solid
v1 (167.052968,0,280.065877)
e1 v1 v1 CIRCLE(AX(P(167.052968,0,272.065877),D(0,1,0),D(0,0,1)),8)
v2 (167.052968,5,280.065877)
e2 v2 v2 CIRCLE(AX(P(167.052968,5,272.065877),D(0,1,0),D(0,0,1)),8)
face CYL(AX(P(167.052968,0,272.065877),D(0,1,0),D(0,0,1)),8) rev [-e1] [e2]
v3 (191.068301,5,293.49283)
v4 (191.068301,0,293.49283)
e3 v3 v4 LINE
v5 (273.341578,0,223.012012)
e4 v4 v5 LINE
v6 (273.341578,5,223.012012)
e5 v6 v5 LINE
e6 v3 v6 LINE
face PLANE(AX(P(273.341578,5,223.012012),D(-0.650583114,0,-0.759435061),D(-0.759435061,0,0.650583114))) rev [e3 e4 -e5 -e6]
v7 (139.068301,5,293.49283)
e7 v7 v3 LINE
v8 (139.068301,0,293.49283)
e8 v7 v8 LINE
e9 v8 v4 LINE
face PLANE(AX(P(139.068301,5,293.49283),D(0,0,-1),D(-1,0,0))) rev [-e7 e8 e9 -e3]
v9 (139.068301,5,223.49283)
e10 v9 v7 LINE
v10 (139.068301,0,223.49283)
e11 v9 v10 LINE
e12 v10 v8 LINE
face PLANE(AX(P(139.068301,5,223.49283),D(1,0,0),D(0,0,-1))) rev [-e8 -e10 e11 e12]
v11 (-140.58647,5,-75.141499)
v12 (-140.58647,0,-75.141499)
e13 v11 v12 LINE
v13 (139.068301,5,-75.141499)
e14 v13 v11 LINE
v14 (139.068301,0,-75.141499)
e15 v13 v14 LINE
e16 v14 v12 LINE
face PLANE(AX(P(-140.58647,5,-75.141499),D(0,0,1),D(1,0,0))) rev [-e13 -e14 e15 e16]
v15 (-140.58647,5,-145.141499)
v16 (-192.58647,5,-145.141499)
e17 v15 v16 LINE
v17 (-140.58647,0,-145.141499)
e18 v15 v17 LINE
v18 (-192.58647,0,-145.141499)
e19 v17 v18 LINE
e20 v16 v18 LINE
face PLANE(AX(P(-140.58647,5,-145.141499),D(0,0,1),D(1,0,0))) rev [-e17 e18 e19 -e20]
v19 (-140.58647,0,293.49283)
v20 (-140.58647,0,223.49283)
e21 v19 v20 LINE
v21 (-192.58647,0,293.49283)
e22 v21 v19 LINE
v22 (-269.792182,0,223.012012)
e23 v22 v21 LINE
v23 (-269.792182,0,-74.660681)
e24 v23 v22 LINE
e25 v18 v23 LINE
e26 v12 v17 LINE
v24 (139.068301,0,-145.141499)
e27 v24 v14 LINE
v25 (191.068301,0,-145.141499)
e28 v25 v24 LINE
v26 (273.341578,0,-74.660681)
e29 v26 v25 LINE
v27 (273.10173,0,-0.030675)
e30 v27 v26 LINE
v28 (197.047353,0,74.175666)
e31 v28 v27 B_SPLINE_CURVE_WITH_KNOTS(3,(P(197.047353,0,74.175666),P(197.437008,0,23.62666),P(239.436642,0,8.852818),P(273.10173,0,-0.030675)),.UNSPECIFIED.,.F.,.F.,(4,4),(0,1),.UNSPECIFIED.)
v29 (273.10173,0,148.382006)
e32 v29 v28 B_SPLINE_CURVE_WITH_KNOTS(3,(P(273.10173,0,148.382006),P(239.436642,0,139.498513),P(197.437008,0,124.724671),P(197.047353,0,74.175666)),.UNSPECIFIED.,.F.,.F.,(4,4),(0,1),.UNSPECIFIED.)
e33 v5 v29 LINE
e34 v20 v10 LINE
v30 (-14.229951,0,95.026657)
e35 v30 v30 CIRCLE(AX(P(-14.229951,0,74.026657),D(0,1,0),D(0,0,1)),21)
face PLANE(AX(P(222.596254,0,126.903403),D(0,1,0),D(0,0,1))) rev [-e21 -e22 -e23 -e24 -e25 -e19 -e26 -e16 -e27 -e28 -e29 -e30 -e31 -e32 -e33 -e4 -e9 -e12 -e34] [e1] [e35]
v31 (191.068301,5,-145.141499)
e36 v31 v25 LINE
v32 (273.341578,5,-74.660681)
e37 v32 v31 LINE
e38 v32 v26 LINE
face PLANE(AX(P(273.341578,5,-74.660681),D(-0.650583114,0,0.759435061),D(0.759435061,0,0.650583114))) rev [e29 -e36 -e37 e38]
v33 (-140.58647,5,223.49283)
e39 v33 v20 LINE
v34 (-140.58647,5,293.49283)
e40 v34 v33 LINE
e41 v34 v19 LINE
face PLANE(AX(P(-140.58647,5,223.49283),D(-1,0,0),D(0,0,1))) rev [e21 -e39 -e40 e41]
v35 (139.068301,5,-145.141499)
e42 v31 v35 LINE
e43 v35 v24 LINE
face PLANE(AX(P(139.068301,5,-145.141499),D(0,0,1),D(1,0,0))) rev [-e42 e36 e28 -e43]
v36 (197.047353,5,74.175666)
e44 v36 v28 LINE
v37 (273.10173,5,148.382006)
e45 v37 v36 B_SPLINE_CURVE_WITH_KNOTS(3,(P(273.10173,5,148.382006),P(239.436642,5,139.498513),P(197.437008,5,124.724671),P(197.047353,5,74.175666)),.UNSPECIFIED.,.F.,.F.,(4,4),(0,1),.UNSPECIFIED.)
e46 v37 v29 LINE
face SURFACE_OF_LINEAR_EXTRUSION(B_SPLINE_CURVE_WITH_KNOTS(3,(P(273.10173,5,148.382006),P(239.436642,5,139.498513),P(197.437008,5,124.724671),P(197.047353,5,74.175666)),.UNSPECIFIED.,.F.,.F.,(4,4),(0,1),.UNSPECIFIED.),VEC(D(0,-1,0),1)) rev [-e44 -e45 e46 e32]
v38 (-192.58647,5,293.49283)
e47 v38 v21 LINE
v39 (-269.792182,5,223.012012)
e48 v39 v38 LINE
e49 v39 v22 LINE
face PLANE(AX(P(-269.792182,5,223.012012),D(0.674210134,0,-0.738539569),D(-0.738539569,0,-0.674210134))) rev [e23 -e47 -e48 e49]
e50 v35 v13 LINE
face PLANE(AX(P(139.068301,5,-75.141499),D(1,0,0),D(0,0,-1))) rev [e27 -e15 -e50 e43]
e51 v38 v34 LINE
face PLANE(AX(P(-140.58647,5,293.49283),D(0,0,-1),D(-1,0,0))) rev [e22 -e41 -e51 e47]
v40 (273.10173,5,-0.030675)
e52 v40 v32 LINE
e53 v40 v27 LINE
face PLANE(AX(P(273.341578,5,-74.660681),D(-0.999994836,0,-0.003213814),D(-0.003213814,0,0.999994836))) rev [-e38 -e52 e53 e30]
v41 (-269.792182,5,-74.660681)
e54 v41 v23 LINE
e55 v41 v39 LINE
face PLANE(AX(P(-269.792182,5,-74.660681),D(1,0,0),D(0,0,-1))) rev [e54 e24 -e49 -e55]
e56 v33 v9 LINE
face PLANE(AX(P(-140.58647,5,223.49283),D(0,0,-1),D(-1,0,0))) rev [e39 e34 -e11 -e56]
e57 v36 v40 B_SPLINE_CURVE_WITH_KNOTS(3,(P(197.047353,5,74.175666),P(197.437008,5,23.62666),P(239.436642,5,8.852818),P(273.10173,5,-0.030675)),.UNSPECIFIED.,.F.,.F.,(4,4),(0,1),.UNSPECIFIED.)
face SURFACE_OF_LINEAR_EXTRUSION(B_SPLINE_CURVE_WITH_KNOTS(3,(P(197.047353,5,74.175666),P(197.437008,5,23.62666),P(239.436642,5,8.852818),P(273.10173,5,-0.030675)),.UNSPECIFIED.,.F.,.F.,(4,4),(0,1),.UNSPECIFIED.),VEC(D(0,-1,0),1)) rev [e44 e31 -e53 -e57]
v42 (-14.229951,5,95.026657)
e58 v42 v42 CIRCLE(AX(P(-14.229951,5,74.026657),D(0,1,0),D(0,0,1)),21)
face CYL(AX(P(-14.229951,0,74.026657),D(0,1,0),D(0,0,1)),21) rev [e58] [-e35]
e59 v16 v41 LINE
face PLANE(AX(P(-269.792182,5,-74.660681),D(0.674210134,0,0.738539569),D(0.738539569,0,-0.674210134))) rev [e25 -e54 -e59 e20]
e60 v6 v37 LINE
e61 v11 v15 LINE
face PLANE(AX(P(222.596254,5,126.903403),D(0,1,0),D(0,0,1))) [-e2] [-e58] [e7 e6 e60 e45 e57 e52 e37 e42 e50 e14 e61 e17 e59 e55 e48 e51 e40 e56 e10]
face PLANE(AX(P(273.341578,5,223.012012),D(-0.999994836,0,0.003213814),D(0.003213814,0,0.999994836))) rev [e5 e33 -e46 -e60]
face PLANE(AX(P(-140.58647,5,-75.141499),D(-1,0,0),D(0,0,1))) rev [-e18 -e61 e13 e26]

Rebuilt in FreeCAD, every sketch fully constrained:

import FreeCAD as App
import Part
import Sketcher

V = App.Vector
Q = App.Units.Quantity

doc = App.newDocument("Part")
body = doc.addObject("PartDesign::Body", "Body")

# Sketch on XZ plane
sketch1 = doc.addObject("Sketcher::SketchObject", "Sketch")
body.addObject(sketch1)
sketch1.AttachmentSupport = (doc.XZ_Plane, [""])
sketch1.MapMode = "FlatFace"
sketch1.addGeometry(Part.LineSegment(V(-269.792182, -74.660681, 0), V(-269.792182, 223.012012, 0)), False)
sketch1.addGeometry(Part.LineSegment(V(-269.792182, 223.012012, 0), V(-192.58647, 293.49283, 0)), False)
sketch1.addGeometry(Part.LineSegment(V(-192.58647, 293.49283, 0), V(-140.58647, 293.49283, 0)), False)
sketch1.addGeometry(Part.LineSegment(V(-140.58647, 293.49283, 0), V(-140.58647, 223.49283, 0)), False)
sketch1.addGeometry(Part.LineSegment(V(-140.58647, 223.49283, 0), V(139.068301, 223.49283, 0)), False)
sketch1.addGeometry(Part.LineSegment(V(139.068301, 223.49283, 0), V(139.068301, 293.49283, 0)), False)
sketch1.addGeometry(Part.LineSegment(V(139.068301, 293.49283, 0), V(191.068301, 293.49283, 0)), False)
sketch1.addGeometry(Part.LineSegment(V(191.068301, 293.49283, 0), V(273.341578, 223.012012, 0)), False)
sketch1.addGeometry(Part.LineSegment(V(273.341578, 223.012012, 0), V(273.10173, 148.382006, 0)), False)
sketch1.addGeometry(Part.BSplineCurve([V(273.10173, 148.382006, 0), V(239.436642, 139.498513, 0), V(197.437008, 124.724671, 0), V(197.047353, 74.175666, 0)], [4, 4], [0, 1], False, 3, [1, 1, 1, 1], False), False)
sketch1.addGeometry(Part.BSplineCurve([V(273.10173, -0.030675, 0), V(239.436642, 8.852818, 0), V(197.437008, 23.62666, 0), V(197.047353, 74.175666, 0)], [4, 4], [0, 1], False, 3, [1, 1, 1, 1], False), False)
sketch1.addGeometry(Part.LineSegment(V(273.10173, -0.030675, 0), V(273.341578, -74.660681, 0)), False)
sketch1.addGeometry(Part.LineSegment(V(273.341578, -74.660681, 0), V(191.068301, -145.141499, 0)), False)
sketch1.addGeometry(Part.LineSegment(V(191.068301, -145.141499, 0), V(139.068301, -145.141499, 0)), False)
sketch1.addGeometry(Part.LineSegment(V(139.068301, -145.141499, 0), V(139.068301, -75.141499, 0)), False)
sketch1.addGeometry(Part.LineSegment(V(139.068301, -75.141499, 0), V(-140.58647, -75.141499, 0)), False)
sketch1.addGeometry(Part.LineSegment(V(-140.58647, -75.141499, 0), V(-140.58647, -145.141499, 0)), False)
sketch1.addGeometry(Part.LineSegment(V(-140.58647, -145.141499, 0), V(-192.58647, -145.141499, 0)), False)
sketch1.addGeometry(Part.LineSegment(V(-192.58647, -145.141499, 0), V(-269.792182, -74.660681, 0)), False)
sketch1.addConstraint(Sketcher.Constraint("Block", 9))
sketch1.addConstraint(Sketcher.Constraint("Block", 10))
sketch1.addConstraint(Sketcher.Constraint("Coincident", 0, 2, 1, 1))
sketch1.addConstraint(Sketcher.Constraint("Coincident", 1, 2, 2, 1))
sketch1.addConstraint(Sketcher.Constraint("Coincident", 2, 2, 3, 1))
sketch1.addConstraint(Sketcher.Constraint("Coincident", 3, 2, 4, 1))
sketch1.addConstraint(Sketcher.Constraint("Coincident", 4, 2, 5, 1))
sketch1.addConstraint(Sketcher.Constraint("Coincident", 5, 2, 6, 1))
sketch1.addConstraint(Sketcher.Constraint("Coincident", 6, 2, 7, 1))
sketch1.addConstraint(Sketcher.Constraint("Coincident", 7, 2, 8, 1))
sketch1.addConstraint(Sketcher.Constraint("Coincident", 8, 2, 9, 1))
sketch1.addConstraint(Sketcher.Constraint("Coincident", 10, 1, 11, 1))
sketch1.addConstraint(Sketcher.Constraint("Coincident", 11, 2, 12, 1))
sketch1.addConstraint(Sketcher.Constraint("Coincident", 12, 2, 13, 1))
sketch1.addConstraint(Sketcher.Constraint("Coincident", 13, 2, 14, 1))
sketch1.addConstraint(Sketcher.Constraint("Coincident", 14, 2, 15, 1))
sketch1.addConstraint(Sketcher.Constraint("Coincident", 15, 2, 16, 1))
sketch1.addConstraint(Sketcher.Constraint("Coincident", 16, 2, 17, 1))
sketch1.addConstraint(Sketcher.Constraint("Coincident", 17, 2, 18, 1))
sketch1.addConstraint(Sketcher.Constraint("Coincident", 18, 2, 0, 1))
sketch1.addConstraint(Sketcher.Constraint("Vertical", 0))
sketch1.addConstraint(Sketcher.Constraint("Horizontal", 2))
sketch1.addConstraint(Sketcher.Constraint("Vertical", 3))
sketch1.addConstraint(Sketcher.Constraint("Horizontal", 4))
sketch1.addConstraint(Sketcher.Constraint("Vertical", 5))
sketch1.addConstraint(Sketcher.Constraint("Horizontal", 6))
sketch1.addConstraint(Sketcher.Constraint("Horizontal", 13))
sketch1.addConstraint(Sketcher.Constraint("Vertical", 14))
sketch1.addConstraint(Sketcher.Constraint("Horizontal", 15))
sketch1.addConstraint(Sketcher.Constraint("Vertical", 16))
sketch1.addConstraint(Sketcher.Constraint("Horizontal", 17))
sketch1.addConstraint(Sketcher.Constraint("DistanceX", 2, 1, 2, 2, Q("52 mm")))
sketch1.addConstraint(Sketcher.Constraint("DistanceX", 6, 1, 6, 2, Q("52 mm")))
sketch1.addConstraint(Sketcher.Constraint("DistanceX", 13, 2, 13, 1, Q("52 mm")))
sketch1.addConstraint(Sketcher.Constraint("DistanceX", 17, 2, 17, 1, Q("52 mm")))
sketch1.addConstraint(Sketcher.Constraint("DistanceY", 3, 2, 3, 1, Q("70 mm")))
sketch1.addConstraint(Sketcher.Constraint("DistanceY", 5, 1, 5, 2, Q("70 mm")))
sketch1.addConstraint(Sketcher.Constraint("DistanceY", 14, 1, 14, 2, Q("70 mm")))
sketch1.addConstraint(Sketcher.Constraint("DistanceY", 16, 2, 16, 1, Q("70 mm")))
sketch1.addConstraint(Sketcher.Constraint("DistanceX", 4, 2, 12, 2, Q("52 mm")))
sketch1.addConstraint(Sketcher.Constraint("DistanceX", 17, 2, 3, 2, Q("52 mm")))
sketch1.addConstraint(Sketcher.Constraint("DistanceX", 4, 1, 4, 2, Q("279.654771 mm")))
sketch1.addConstraint(Sketcher.Constraint("DistanceX", -1, 1, 4, 2, Q("139.068301 mm")))
sketch1.addConstraint(Sketcher.Constraint("DistanceY", 12, 2, -1, 1, Q("145.141499 mm")))
sketch1.addConstraint(Sketcher.Constraint("Distance", 7, Q("108.334841 mm")))
sketch1.addConstraint(Sketcher.Constraint("Distance", 8, Q("74.630392 mm")))
sketch1.addConstraint(Sketcher.Constraint("Distance", 11, Q("74.630392 mm")))
sketch1.addConstraint(Sketcher.Constraint("Distance", 12, Q("108.334841 mm")))
sketch1.addConstraint(Sketcher.Constraint("DistanceY", 0, 1, 0, 2, Q("297.672693 mm")))
sketch1.addConstraint(Sketcher.Constraint("DistanceX", 0, 2, -1, 1, Q("269.792182 mm")))
sketch1.addConstraint(Sketcher.Constraint("DistanceY", -1, 1, 0, 2, Q("223.012012 mm")))
sketch1.addConstraint(Sketcher.Constraint("DistanceY", -1, 1, 1, 2, Q("293.49283 mm")))
pad1 = doc.addObject("PartDesign::Pad", "Pad")
body.addObject(pad1)
pad1.Profile = sketch1
pad1.Length = 5
pad1.Reversed = True

# Sketch on XZ plane
sketch2 = doc.addObject("Sketcher::SketchObject", "Sketch001")
body.addObject(sketch2)
sketch2.AttachmentSupport = (doc.XZ_Plane, [""])
sketch2.MapMode = "FlatFace"
sketch2.AttachmentOffset = App.Placement(V(0, 0, -5), App.Rotation())
sketch2.addGeometry(Part.Circle(V(-14, 74, 0), V(0, 0, 1), 21), False)
sketch2.addConstraint(Sketcher.Constraint("Diameter", 0, Q("42 mm")))
sketch2.addConstraint(Sketcher.Constraint("DistanceX", 0, 3, -1, 1, Q("14.229951 mm")))
sketch2.addConstraint(Sketcher.Constraint("DistanceY", -1, 1, 0, 3, Q("74.026657 mm")))
pocket1 = doc.addObject("PartDesign::Pocket", "Pocket")
body.addObject(pocket1)
pocket1.Profile = sketch2
pocket1.Type = "ThroughAll"
pocket1.Reversed = True

# Sketch on XZ plane
sketch3 = doc.addObject("Sketcher::SketchObject", "Sketch002")
body.addObject(sketch3)
sketch3.AttachmentSupport = (doc.XZ_Plane, [""])
sketch3.MapMode = "FlatFace"
sketch3.AttachmentOffset = App.Placement(V(0, 0, -5), App.Rotation())
sketch3.addGeometry(Part.Circle(V(167, 272, 0), V(0, 0, 1), 8), False)
sketch3.addConstraint(Sketcher.Constraint("Diameter", 0, Q("16 mm")))
sketch3.addConstraint(Sketcher.Constraint("DistanceX", -1, 1, 0, 3, Q("167.052968 mm")))
sketch3.addConstraint(Sketcher.Constraint("DistanceY", -1, 1, 0, 3, Q("272.065877 mm")))
pocket2 = doc.addObject("PartDesign::Pocket", "Pocket001")
body.addObject(pocket2)
pocket2.Profile = sketch3
pocket2.Type = "ThroughAll"
pocket2.Reversed = True

doc.recompute()
